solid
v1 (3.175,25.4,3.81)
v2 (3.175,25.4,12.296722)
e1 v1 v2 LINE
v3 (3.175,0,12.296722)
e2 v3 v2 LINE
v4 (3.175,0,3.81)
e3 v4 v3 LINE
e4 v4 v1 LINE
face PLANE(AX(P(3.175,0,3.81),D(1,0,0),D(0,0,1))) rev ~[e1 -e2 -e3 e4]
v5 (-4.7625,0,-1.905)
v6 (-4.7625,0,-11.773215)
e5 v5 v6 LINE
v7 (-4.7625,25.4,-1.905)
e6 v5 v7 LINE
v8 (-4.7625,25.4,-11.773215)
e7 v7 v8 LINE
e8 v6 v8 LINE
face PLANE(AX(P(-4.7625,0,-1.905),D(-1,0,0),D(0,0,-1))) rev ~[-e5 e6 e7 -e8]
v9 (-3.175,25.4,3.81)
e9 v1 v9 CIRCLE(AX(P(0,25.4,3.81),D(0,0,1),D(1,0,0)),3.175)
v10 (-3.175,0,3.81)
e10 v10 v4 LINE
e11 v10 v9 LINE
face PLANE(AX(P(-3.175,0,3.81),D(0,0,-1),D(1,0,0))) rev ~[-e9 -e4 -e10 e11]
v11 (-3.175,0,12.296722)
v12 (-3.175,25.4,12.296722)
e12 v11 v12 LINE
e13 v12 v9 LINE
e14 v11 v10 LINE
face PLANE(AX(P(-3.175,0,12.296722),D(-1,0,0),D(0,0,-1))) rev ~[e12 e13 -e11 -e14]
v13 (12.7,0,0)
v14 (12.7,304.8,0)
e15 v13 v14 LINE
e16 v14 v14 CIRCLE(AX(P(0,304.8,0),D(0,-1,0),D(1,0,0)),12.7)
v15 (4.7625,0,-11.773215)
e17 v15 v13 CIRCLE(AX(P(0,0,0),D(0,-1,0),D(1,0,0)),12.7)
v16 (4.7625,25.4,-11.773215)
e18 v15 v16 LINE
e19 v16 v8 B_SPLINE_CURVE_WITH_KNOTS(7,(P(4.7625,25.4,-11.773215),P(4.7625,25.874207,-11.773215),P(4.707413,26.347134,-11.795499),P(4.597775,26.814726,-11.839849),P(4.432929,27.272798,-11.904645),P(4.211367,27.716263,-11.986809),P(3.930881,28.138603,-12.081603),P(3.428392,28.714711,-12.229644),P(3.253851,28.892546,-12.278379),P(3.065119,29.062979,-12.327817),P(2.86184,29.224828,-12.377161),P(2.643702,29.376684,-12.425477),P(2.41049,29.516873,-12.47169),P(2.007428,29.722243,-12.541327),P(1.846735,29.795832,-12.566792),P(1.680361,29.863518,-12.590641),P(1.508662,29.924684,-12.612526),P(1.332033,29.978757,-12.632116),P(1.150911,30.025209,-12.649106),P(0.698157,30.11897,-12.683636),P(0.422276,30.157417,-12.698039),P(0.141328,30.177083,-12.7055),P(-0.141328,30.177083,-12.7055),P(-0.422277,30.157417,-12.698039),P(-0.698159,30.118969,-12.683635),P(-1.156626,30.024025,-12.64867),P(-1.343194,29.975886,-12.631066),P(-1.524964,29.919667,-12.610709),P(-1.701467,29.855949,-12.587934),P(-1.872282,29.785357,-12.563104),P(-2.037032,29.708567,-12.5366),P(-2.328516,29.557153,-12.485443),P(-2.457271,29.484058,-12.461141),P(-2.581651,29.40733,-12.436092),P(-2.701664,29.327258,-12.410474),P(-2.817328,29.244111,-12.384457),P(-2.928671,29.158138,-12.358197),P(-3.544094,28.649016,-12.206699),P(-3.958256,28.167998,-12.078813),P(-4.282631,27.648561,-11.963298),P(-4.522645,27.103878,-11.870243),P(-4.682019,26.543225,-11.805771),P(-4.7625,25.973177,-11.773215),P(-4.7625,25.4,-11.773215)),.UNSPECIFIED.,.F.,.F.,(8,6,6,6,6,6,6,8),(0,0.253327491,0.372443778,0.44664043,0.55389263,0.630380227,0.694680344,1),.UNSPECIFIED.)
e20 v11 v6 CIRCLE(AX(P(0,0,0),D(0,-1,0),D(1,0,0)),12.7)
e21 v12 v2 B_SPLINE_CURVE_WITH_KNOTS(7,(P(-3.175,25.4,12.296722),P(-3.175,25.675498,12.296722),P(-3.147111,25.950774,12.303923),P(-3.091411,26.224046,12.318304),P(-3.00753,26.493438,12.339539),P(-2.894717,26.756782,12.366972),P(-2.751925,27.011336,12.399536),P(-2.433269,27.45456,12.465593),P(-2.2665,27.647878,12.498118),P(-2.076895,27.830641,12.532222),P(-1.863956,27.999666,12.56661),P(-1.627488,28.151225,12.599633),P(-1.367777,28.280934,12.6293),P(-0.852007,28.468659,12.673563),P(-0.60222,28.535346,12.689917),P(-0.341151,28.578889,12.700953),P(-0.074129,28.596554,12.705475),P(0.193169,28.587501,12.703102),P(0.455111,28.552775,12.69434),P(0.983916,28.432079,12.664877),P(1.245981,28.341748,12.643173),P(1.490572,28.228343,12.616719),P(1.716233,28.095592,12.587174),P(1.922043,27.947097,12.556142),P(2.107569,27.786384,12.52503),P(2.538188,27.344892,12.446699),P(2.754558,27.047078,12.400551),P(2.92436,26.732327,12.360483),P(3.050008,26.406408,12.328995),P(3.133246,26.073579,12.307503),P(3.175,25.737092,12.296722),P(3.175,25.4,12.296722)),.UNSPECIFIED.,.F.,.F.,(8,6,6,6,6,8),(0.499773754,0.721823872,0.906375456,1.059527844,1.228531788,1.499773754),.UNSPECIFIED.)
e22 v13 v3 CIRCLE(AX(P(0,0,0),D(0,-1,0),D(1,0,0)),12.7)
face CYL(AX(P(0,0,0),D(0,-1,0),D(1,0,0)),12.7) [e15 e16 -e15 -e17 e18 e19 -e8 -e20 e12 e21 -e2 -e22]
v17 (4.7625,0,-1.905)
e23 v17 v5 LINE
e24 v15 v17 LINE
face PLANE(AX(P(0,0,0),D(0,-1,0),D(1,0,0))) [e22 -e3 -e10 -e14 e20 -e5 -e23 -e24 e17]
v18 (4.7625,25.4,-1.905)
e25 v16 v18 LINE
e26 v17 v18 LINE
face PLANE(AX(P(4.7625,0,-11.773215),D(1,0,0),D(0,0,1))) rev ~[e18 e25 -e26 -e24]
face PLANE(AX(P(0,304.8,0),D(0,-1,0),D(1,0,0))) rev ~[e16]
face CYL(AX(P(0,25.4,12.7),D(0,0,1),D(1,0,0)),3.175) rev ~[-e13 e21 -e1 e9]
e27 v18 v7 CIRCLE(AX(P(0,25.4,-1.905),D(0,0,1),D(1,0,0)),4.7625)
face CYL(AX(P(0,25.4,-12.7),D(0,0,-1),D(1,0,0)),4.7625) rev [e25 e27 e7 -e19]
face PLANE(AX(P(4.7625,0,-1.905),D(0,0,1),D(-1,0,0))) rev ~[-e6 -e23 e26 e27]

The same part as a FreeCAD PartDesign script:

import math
import FreeCAD as App
import Part
import Sketcher

V = App.Vector
Q = App.Units.Quantity

doc = App.newDocument("Part")
body = doc.addObject("PartDesign::Body", "Body")

# Sketch on XZ plane
sketch1 = doc.addObject("Sketcher::SketchObject", "Sketch")
body.addObject(sketch1)
sketch1.AttachmentSupport = (doc.XZ_Plane, [""])
sketch1.MapMode = "FlatFace"
sketch1.addGeometry(Part.Circle(V(0, 0, 0), V(0, 0, 1), 13), False)
sketch1.addConstraint([
    Sketcher.Constraint("Coincident", 0, 3, -1, 1),
    Sketcher.Constraint("Diameter", 0, Q("1 in")),
])
pad1 = doc.addObject("PartDesign::Pad", "Pad")
body.addObject(pad1)
pad1.Profile = sketch1
pad1.Length = Q("12 in")
pad1.Reversed = True

# Sketch on XZ plane
sketch2 = doc.addObject("Sketcher::SketchObject", "Sketch001")
body.addObject(sketch2)
sketch2.AttachmentSupport = (doc.XZ_Plane, [""])
sketch2.MapMode = "FlatFace"
sketch2.addGeometry([
    Part.ArcOfCircle(Part.Circle(V(0, 0, 0), V(0, 0, 1), 13), math.radians(76), math.radians(104)),  # 0
    Part.LineSegment(V(-3, 12, 0), V(-3, 4, 0)),  # 1
    Part.LineSegment(V(-3, 4, 0), V(3, 4, 0)),  # 2
    Part.LineSegment(V(3, 4, 0), V(3, 12, 0)),  # 3
    Part.LineSegment(V(-5, -2, 0), V(-5, -12, 0)),  # 4
    Part.ArcOfCircle(Part.Circle(V(0, 0, 0), V(0, 0, 1), 13), math.radians(-112), math.radians(-68)),  # 5
    Part.LineSegment(V(5, -12, 0), V(5, -2, 0)),  # 6
    Part.LineSegment(V(5, -2, 0), V(-5, -2, 0)),  # 7
], False)
sketch2.addConstraint([
    Sketcher.Constraint("Coincident", 0, 2, 1, 1),
    Sketcher.Constraint("Coincident", 1, 2, 2, 1),
    Sketcher.Constraint("Coincident", 2, 2, 3, 1),
    Sketcher.Constraint("Coincident", 3, 2, 0, 1),
    Sketcher.Constraint("Coincident", 4, 2, 5, 1),
    Sketcher.Constraint("Coincident", 5, 2, 6, 1),
    Sketcher.Constraint("Coincident", 6, 2, 7, 1),
    Sketcher.Constraint("Coincident", 7, 2, 4, 1),
    Sketcher.Constraint("Vertical", 1),
    Sketcher.Constraint("Horizontal", 2),
    Sketcher.Constraint("Vertical", 3),
    Sketcher.Constraint("Vertical", 4),
    Sketcher.Constraint("Vertical", 6),
    Sketcher.Constraint("Horizontal", 7),
    Sketcher.Constraint("Coincident", 0, 3, -1, 1),
    Sketcher.Constraint("Coincident", 5, 3, -1, 1),
    Sketcher.Constraint("Horizontal", 0, 2, 3, 2),
    Sketcher.Constraint("Horizontal", 4, 2, 5, 2),
    Sketcher.Constraint("Radius", 0, Q("0.4999999 in")),
    Sketcher.Constraint("Radius", 5, Q("0.5 in")),
    Sketcher.Constraint("DistanceX", 2, 1, 2, 2, Q("0.25 in")),
    Sketcher.Constraint("DistanceX", 7, 2, 7, 1, Q("0.375 in")),
    Sketcher.Constraint("DistanceY", -1, 1, 1, 2, Q("0.15 in")),
    Sketcher.Constraint("DistanceY", 6, 2, -1, 1, Q("0.075 in")),
])
pocket1 = doc.addObject("PartDesign::Pocket", "Pocket")
body.addObject(pocket1)
pocket1.Profile = sketch2
pocket1.Length = Q("1 in")

# Sketch on XY plane
sketch3 = doc.addObject("Sketcher::SketchObject", "Sketch002")
body.addObject(sketch3)
sketch3.AttachmentSupport = (doc.XY_Plane, [""])
sketch3.MapMode = "FlatFace"
sketch3.AttachmentOffset = App.Placement(V(0, 0, 0.5 * 25.4), App.Rotation())
sketch3.addGeometry([
    Part.LineSegment(V(-3.2, 25.4, 0), V(3.2, 25.4, 0)),
    Part.ArcOfCircle(Part.Circle(V(0, 25.4, 0), V(0, 0, 1), 3.2), math.radians(0), math.radians(180)),
], False)
sketch3.addConstraint([
    Sketcher.Constraint("Coincident", 0, 1, 1, 2),
    Sketcher.Constraint("Coincident", 1, 1, 0, 2),
    Sketcher.Constraint("Horizontal", 0),
    Sketcher.Constraint("PointOnObject", 1, 3, -2),
    Sketcher.Constraint("Horizontal", 1, 3, 0, 1),
    Sketcher.Constraint("DistanceY", -1, 1, 1, 3, Q("1 in")),
    Sketcher.Constraint("Radius", 1, Q("0.125 in")),
])
pocket2 = doc.addObject("PartDesign::Pocket", "Pocket001")
body.addObject(pocket2)
pocket2.Profile = sketch3
pocket2.Length = Q("0.35 in")

# Sketch on XY plane
sketch4 = doc.addObject("Sketcher::SketchObject", "Sketch003")
body.addObject(sketch4)
sketch4.AttachmentSupport = (doc.XY_Plane, [""])
sketch4.MapMode = "FlatFace"
sketch4.AttachmentOffset = App.Placement(V(0, 0, -0.5 * 25.4), App.Rotation())
sketch4.addGeometry([
    Part.ArcOfCircle(Part.Circle(V(0, 25.4, 0), V(0, 0, 1), 4.8), math.radians(0), math.radians(180)),
    Part.LineSegment(V(-4.8, 25.4, 0), V(4.8, 25.4, 0)),
], False)
sketch4.addConstraint([
    Sketcher.Constraint("Coincident", 0, 1, 1, 2),
    Sketcher.Constraint("Coincident", 1, 1, 0, 2),
    Sketcher.Constraint("Horizontal", 1),
    Sketcher.Constraint("PointOnObject", 0, 3, -2),
    Sketcher.Constraint("DistanceY", -1, 1, 0, 3, Q("1 in")),
    Sketcher.Constraint("DistanceY", -1, 1, 0, 1, Q("1 in")),
    Sketcher.Constraint("Radius", 0, Q("0.1875 in")),
])
pocket3 = doc.addObject("PartDesign::Pocket", "Pocket002")
body.addObject(pocket3)
pocket3.Profile = sketch4
pocket3.Length = Q("0.425 in")
pocket3.Reversed = True

doc.recompute()
